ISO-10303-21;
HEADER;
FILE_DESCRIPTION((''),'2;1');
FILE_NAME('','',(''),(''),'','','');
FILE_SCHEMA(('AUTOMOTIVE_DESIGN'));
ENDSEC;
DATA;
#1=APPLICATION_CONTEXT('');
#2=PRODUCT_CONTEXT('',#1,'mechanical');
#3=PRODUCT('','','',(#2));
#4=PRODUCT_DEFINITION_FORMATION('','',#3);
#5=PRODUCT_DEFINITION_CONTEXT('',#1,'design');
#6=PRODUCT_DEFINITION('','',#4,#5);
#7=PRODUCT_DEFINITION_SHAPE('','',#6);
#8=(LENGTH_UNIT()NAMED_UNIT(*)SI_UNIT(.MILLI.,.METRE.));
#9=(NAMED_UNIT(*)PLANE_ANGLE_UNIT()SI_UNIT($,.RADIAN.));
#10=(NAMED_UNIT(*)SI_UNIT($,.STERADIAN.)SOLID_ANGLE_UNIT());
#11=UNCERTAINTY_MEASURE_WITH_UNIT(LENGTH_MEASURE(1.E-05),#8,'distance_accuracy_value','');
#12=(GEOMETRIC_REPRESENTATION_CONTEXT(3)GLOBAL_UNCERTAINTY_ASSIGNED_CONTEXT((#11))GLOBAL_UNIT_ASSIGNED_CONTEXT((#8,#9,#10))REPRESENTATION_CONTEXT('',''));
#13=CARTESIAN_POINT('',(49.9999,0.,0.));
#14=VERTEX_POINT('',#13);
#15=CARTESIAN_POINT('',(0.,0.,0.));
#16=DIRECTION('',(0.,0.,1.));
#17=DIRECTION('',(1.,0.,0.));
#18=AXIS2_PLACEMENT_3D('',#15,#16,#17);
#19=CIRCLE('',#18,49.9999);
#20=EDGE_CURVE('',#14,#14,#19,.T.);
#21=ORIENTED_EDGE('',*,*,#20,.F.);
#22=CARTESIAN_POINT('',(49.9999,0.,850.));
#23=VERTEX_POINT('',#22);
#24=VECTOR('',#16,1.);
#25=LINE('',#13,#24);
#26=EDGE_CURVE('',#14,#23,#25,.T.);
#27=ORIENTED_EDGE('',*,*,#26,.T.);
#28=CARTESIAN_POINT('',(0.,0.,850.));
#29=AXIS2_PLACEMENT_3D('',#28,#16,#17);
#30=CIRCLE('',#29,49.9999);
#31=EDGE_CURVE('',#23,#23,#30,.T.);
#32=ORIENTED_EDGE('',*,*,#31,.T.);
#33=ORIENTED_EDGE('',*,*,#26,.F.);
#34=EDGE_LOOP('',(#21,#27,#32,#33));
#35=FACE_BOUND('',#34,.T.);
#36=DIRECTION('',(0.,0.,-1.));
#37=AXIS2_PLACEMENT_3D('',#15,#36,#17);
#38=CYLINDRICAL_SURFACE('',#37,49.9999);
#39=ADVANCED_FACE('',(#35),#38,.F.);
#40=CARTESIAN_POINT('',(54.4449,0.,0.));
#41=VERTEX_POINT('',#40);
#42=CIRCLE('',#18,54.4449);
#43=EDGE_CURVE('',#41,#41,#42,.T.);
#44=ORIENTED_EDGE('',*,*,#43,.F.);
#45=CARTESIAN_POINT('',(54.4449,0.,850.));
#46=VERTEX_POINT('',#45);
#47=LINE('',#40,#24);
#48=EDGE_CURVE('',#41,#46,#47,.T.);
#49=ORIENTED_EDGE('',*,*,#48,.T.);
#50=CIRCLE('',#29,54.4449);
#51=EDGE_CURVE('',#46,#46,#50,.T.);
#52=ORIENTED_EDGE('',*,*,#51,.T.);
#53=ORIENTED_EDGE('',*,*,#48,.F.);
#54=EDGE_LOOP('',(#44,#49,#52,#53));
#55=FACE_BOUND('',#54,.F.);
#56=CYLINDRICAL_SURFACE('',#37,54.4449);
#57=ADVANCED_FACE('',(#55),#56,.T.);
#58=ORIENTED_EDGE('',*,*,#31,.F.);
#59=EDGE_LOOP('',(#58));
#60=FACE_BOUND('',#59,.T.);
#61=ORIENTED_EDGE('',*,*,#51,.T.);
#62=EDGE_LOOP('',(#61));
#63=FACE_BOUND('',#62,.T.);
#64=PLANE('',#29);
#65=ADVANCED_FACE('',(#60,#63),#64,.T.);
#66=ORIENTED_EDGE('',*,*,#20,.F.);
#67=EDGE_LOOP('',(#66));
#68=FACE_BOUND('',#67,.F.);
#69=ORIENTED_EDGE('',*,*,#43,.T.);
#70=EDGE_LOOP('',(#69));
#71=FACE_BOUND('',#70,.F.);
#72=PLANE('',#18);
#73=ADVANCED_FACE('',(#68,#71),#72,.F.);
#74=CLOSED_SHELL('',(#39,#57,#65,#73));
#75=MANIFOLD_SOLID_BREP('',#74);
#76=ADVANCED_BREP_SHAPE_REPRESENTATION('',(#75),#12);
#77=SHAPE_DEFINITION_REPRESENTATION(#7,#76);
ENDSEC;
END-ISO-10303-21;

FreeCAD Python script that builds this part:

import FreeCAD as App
import Part
import Sketcher

V = App.Vector
Q = App.Units.Quantity

doc = App.newDocument("Part")
body = doc.addObject("PartDesign::Body", "Body")

# Sketch on XY plane
sketch1 = body.newObject("Sketcher::SketchObject", "Sketch")
sketch1.AttachmentSupport = (doc.getObject("XY_Plane"), [""])
sketch1.MapMode = "FlatFace"
sketch1.addGeometry(Part.Circle(V(0, 0, 0), V(0, 0, 1), 54), False)
sketch1.addGeometry(Part.Circle(V(0, 0, 0), V(0, 0, 1), 50), False)
sketch1.addConstraint(Sketcher.Constraint("Coincident", 0, 3, -1, 1))
sketch1.addConstraint(Sketcher.Constraint("Coincident", 1, 3, -1, 1))
sketch1.addConstraint(Sketcher.Constraint("Diameter", 1, Q("3.937 in")))
sketch1.addConstraint(Sketcher.Constraint("Diameter", 0, Q("4.287 in")))
pad1 = body.newObject("PartDesign::Pad", "Pad")
pad1.Profile = sketch1
pad1.Length = 850

doc.recompute()
